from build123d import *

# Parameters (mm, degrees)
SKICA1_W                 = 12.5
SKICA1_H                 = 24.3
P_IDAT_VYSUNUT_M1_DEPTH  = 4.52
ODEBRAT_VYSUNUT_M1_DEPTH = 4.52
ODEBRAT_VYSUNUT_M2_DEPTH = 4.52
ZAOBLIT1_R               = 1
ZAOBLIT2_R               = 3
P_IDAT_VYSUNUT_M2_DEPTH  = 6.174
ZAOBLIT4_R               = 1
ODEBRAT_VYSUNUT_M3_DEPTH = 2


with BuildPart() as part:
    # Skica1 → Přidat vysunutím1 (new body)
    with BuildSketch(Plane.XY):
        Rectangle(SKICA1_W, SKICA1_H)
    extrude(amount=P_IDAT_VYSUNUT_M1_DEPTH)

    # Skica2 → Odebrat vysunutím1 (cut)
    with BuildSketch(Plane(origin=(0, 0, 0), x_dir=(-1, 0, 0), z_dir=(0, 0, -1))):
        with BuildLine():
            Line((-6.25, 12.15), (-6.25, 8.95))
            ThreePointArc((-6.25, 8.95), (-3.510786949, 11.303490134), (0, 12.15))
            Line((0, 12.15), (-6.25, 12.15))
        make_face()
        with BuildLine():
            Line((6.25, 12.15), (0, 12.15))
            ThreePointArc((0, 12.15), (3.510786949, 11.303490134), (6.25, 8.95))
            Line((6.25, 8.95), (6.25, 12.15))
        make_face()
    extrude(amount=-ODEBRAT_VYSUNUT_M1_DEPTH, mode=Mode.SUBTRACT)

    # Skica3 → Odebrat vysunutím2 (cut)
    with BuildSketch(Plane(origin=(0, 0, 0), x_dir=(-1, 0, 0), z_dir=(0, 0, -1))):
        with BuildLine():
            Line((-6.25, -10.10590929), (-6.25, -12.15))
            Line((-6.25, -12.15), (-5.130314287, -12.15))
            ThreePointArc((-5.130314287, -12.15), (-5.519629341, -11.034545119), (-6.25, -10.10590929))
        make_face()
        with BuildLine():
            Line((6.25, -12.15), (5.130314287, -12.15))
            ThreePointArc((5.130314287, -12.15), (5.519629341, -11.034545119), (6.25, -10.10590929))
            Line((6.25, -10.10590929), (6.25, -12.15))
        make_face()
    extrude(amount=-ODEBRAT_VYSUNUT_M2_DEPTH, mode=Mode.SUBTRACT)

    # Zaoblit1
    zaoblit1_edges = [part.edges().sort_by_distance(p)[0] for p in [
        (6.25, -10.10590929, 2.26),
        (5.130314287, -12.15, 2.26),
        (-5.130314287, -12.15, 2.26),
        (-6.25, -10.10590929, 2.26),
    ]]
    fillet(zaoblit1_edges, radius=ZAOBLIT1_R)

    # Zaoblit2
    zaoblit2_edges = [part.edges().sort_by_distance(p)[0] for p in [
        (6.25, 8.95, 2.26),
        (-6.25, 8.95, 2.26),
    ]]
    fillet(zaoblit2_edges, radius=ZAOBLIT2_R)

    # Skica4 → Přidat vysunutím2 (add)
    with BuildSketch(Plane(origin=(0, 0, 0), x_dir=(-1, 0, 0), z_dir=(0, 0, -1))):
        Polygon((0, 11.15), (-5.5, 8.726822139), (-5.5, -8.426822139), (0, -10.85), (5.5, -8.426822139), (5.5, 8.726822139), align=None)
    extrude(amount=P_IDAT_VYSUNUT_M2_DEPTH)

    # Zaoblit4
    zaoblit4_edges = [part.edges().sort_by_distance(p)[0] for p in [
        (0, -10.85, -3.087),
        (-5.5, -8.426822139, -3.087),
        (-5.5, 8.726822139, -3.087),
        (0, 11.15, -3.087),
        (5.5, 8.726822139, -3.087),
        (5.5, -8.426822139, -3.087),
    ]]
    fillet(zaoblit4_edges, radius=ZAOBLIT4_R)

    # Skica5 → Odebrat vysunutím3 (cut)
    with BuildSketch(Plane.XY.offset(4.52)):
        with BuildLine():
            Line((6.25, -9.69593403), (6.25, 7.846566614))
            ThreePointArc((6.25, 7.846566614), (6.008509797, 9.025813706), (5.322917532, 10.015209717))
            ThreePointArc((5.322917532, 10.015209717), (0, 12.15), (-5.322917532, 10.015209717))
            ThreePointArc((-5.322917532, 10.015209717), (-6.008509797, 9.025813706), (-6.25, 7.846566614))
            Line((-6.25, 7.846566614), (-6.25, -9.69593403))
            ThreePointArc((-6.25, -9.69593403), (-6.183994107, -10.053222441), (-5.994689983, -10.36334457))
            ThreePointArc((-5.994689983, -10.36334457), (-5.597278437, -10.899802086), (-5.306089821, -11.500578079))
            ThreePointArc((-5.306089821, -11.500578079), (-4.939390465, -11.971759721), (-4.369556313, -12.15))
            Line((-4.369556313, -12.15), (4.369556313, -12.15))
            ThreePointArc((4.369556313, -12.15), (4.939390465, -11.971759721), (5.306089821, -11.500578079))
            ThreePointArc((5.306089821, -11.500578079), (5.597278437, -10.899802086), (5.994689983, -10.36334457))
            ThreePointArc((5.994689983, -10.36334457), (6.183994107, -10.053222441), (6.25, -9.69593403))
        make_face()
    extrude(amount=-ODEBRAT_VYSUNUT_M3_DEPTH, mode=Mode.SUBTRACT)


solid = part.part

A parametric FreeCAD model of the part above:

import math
import FreeCAD as App
import Part
import Sketcher

V = App.Vector


def edges_at(feature, points):
    """Names of the edges that pass closest to the given points."""
    edges = feature.Shape.Edges
    near = lambda p: min(range(len(edges)), key=lambda i: edges[i].distToShape(Part.Vertex(*p))[0])
    return sorted({f"Edge{near(p) + 1}" for p in points})

doc = App.newDocument("Part")
body = doc.addObject("PartDesign::Body", "Body")

sketch1 = body.newObject("Sketcher::SketchObject", "Sketch")
sketch1.AttachmentSupport = (doc.getObject("XY_Plane"), [""])
sketch1.MapMode = "FlatFace"
sketch1.addGeometry([
    Part.LineSegment(V(-6, 12, 0), V(-6, -12, 0)),
    Part.LineSegment(V(-6, -12, 0), V(6, -12, 0)),
    Part.LineSegment(V(6, -12, 0), V(6, 12, 0)),
    Part.LineSegment(V(6, 12, 0), V(-6, 12, 0)),
], False)
sketch1.addConstraint([
    Sketcher.Constraint("Coincident", 0, 2, 1, 1),
    Sketcher.Constraint("Coincident", 1, 2, 2, 1),
    Sketcher.Constraint("Coincident", 2, 2, 3, 1),
    Sketcher.Constraint("Coincident", 3, 2, 0, 1),
    Sketcher.Constraint("Vertical", 0),
    Sketcher.Constraint("Horizontal", 1),
    Sketcher.Constraint("Vertical", 2),
    Sketcher.Constraint("Horizontal", 3),
    Sketcher.Constraint("Symmetric", 0, 2, 2, 2, -1, 1),
    Sketcher.Constraint("DistanceX", 1, 1, 1, 2, 12.5),
    Sketcher.Constraint("DistanceY", 0, 2, 0, 1, 24.3),
])
pad1 = body.newObject("PartDesign::Pad", "Pad")
pad1.Profile = sketch1
pad1.Length = 4.52

sketch2 = body.newObject("Sketcher::SketchObject", "Sketch001")
sketch2.AttachmentSupport = (doc.getObject("XY_Plane"), [""])
sketch2.MapMode = "FlatFace"
sketch2.addGeometry([
    Part.LineSegment(V(6.2, 12.2, 0), V(6.2, 8.9, 0)),
    Part.ArcOfCircle(Part.Circle(V(0, 4.4, 0), V(0, 0, 1), 7.7), math.radians(36), math.radians(90)),
    Part.LineSegment(V(0, 12.2, 0), V(6.2, 12.2, 0)),
    Part.LineSegment(V(-6.2, 12.2, 0), V(0, 12.2, 0)),
    Part.ArcOfCircle(Part.Circle(V(0, 4.4, 0), V(0, 0, 1), 7.7), math.radians(90), math.radians(144)),
    Part.LineSegment(V(-6.2, 8.9, 0), V(-6.2, 12.2, 0)),
], False)
sketch2.addConstraint([
    Sketcher.Constraint("Coincident", 0, 2, 1, 1),
    Sketcher.Constraint("Tangent", 1, 2, 2, 1),
    Sketcher.Constraint("Coincident", 2, 2, 0, 1),
    Sketcher.Constraint("Tangent", 3, 2, 4, 1),
    Sketcher.Constraint("Coincident", 4, 2, 5, 1),
    Sketcher.Constraint("Coincident", 5, 2, 3, 1),
    Sketcher.Constraint("Vertical", 0),
    Sketcher.Constraint("Horizontal", 2),
    Sketcher.Constraint("Horizontal", 3),
    Sketcher.Constraint("Vertical", 5),
    Sketcher.Constraint("Coincident", 4, 3, 1, 3),
    Sketcher.Constraint("Equal", 1, 4),
    Sketcher.Constraint("Symmetric", 0, 2, 4, 2, -2),
    Sketcher.Constraint("DistanceY", 0, 2, 0, 1, 3.2),
    Sketcher.Constraint("DistanceX", 2, 1, 2, 2, 6.25),
    Sketcher.Constraint("DistanceY", -1, 1, 0, 2, 8.95),
])
pocket1 = body.newObject("PartDesign::Pocket", "Pocket")
pocket1.Profile = sketch2
pocket1.Length = 4.52
pocket1.Reversed = True

sketch3 = body.newObject("Sketcher::SketchObject", "Sketch002")
sketch3.AttachmentSupport = (doc.getObject("XY_Plane"), [""])
sketch3.MapMode = "FlatFace"
sketch3.addGeometry([
    Part.LineSegment(V(6.2, -10.1, 0), V(6.2, -12.2, 0)),
    Part.LineSegment(V(6.2, -12.2, 0), V(5.1, -12.2, 0)),
    Part.ArcOfCircle(Part.Circle(V(8.7, -12.8, 0), V(0, 0, 1), 3.6), math.radians(132), math.radians(170)),
    Part.LineSegment(V(-5.1, -12.2, 0), V(-6.2, -12.2, 0)),
    Part.LineSegment(V(-6.2, -12.2, 0), V(-6.2, -10.1, 0)),
    Part.ArcOfCircle(Part.Circle(V(-8.7, -12.8, 0), V(0, 0, 1), 3.6), math.radians(10), math.radians(48)),
], False)
sketch3.addConstraint([
    Sketcher.Constraint("Coincident", 0, 2, 1, 1),
    Sketcher.Constraint("Coincident", 1, 2, 2, 2),
    Sketcher.Constraint("Coincident", 2, 1, 0, 1),
    Sketcher.Constraint("Coincident", 3, 2, 4, 1),
    Sketcher.Constraint("Coincident", 4, 2, 5, 2),
    Sketcher.Constraint("Coincident", 5, 1, 3, 1),
    Sketcher.Constraint("Vertical", 0),
    Sketcher.Constraint("Horizontal", 1),
    Sketcher.Constraint("Horizontal", 3),
    Sketcher.Constraint("Vertical", 4),
    Sketcher.Constraint("Equal", 2, 5),
    Sketcher.Constraint("Symmetric", 2, 3, 5, 3, -2),
    Sketcher.Constraint("Symmetric", 0, 2, 3, 2, -2),
    Sketcher.Constraint("DistanceX", 3, 2, 0, 2, 12.5),
    Sketcher.Constraint("DistanceY", 0, 2, -1, 1, 12.15),
    Sketcher.Constraint("Radius", 2, 3.589384),
    Sketcher.Constraint("DistanceY", 0, 2, 0, 1, 2.044091),
    Sketcher.Constraint("DistanceX", 1, 2, 1, 1, 1.119686),
])
pocket2 = body.newObject("PartDesign::Pocket", "Pocket001")
pocket2.Profile = sketch3
pocket2.Length = 4.52
pocket2.Reversed = True
doc.recompute()

fillet = body.newObject("PartDesign::Fillet", "Fillet")
fillet.Base = (pocket2, edges_at(pocket2, [
    (6.25, -10.106, 2.26),
    (5.13, -12.15, 2.26),
    (-5.13, -12.15, 2.26),
    (-6.25, -10.106, 2.26),
]))
fillet.Radius = 1
doc.recompute()

fillet2 = body.newObject("PartDesign::Fillet", "Fillet001")
fillet2.Base = (fillet, edges_at(fillet, [(6.25, 8.95, 2.26), (-6.25, 8.95, 2.26)]))
fillet2.Radius = 3

sketch4 = body.newObject("Sketcher::SketchObject", "Sketch003")
sketch4.AttachmentSupport = (doc.getObject("XY_Plane"), [""])
sketch4.MapMode = "FlatFace"
sketch4.addGeometry([
    Part.LineSegment(V(0, 11, 0), V(6, 9, 0)),
    Part.LineSegment(V(6, 9, 0), V(6, -8, 0)),
    Part.LineSegment(V(6, -8, 0), V(0, -11, 0)),
    Part.LineSegment(V(0, -11, 0), V(-6, -8, 0)),
    Part.LineSegment(V(-6, -8, 0), V(-6, 9, 0)),
    Part.LineSegment(V(-6, 9, 0), V(0, 11, 0)),
], False)
sketch4.addConstraint([
    Sketcher.Constraint("Coincident", 0, 2, 1, 1),
    Sketcher.Constraint("Coincident", 1, 2, 2, 1),
    Sketcher.Constraint("Coincident", 2, 2, 3, 1),
    Sketcher.Constraint("Coincident", 3, 2, 4, 1),
    Sketcher.Constraint("Coincident", 4, 2, 5, 1),
    Sketcher.Constraint("Coincident", 5, 2, 0, 1),
    Sketcher.Constraint("Vertical", 1),
    Sketcher.Constraint("Vertical", 4),
    Sketcher.Constraint("Symmetric", 1, 2, 3, 2, -2),
    Sketcher.Constraint("PointOnObject", 2, 2, -2),
    Sketcher.Constraint("PointOnObject", 5, 2, -2),
    Sketcher.Constraint("Parallel", 0, 3),
    Sketcher.Constraint("Parallel", 2, 5),
    Sketcher.Constraint("DistanceX", 3, 2, 1, 2, 11.0),
    Sketcher.Constraint("DistanceY", 2, 2, 5, 2, 22.0),
    Sketcher.Constraint("DistanceY", 2, 2, -1, 1, 10.85),
    Sketcher.Constraint("Distance", 0, 6.010141),
])
pad2 = body.newObject("PartDesign::Pad", "Pad001")
pad2.Profile = sketch4
pad2.Length = 6.174
pad2.Reversed = True
doc.recompute()

fillet3 = body.newObject("PartDesign::Fillet", "Fillet002")
fillet3.Base = (pad2, edges_at(pad2, [
    (0, -10.85, -3.087),
    (-5.5, -8.427, -3.087),
    (-5.5, 8.727, -3.087),
    (0, 11.15, -3.087),
    (5.5, 8.727, -3.087),
    (5.5, -8.427, -3.087),
]))
fillet3.Radius = 1

sketch5 = body.newObject("Sketcher::SketchObject", "Sketch004")
sketch5.AttachmentSupport = (doc.getObject("XY_Plane"), [""])
sketch5.MapMode = "FlatFace"
sketch5.AttachmentOffset = App.Placement(V(0, 0, 4.52), App.Rotation())
sketch5.addGeometry([
    Part.LineSegment(V(6.2, -9.7, 0), V(6.2, 7.8, 0)),
    Part.ArcOfCircle(Part.Circle(V(3.3, 7.8, 0), V(0, 0, 1), 3), math.radians(0), math.radians(46)),
    Part.ArcOfCircle(Part.Circle(V(0, 4.4, 0), V(0, 0, 1), 7.7), math.radians(46), math.radians(134)),
    Part.ArcOfCircle(Part.Circle(V(-3.3, 7.8, 0), V(0, 0, 1), 3), math.radians(134), math.radians(180)),
    Part.LineSegment(V(-6.2, 7.8, 0), V(-6.2, -9.7, 0)),
    Part.ArcOfCircle(Part.Circle(V(-5.3, -9.7, 0), V(0, 0, 1), 1), math.radians(180), math.radians(222)),
    Part.ArcOfCircle(Part.Circle(V(-8.7, -12.8, 0), V(0, 0, 1), 3.6), math.radians(21), math.radians(42)),
    Part.ArcOfCircle(Part.Circle(V(-4.4, -11.1, 0), V(0, 0, 1), 1), math.radians(-159), math.radians(-90)),
    Part.LineSegment(V(-4.4, -12.2, 0), V(4.4, -12.2, 0)),
    Part.ArcOfCircle(Part.Circle(V(4.4, -11.1, 0), V(0, 0, 1), 1), math.radians(-90), math.radians(-21)),
    Part.ArcOfCircle(Part.Circle(V(8.7, -12.8, 0), V(0, 0, 1), 3.6), math.radians(138), math.radians(159)),
    Part.ArcOfCircle(Part.Circle(V(5.3, -9.7, 0), V(0, 0, 1), 1), math.radians(-42), math.radians(0)),
], False)
sketch5.addConstraint([
    Sketcher.Constraint("Tangent", 0, 2, 1, 1),
    Sketcher.Constraint("Tangent", 1, 2, 2, 1),
    Sketcher.Constraint("Tangent", 2, 2, 3, 1),
    Sketcher.Constraint("Tangent", 3, 2, 4, 1),
    Sketcher.Constraint("Tangent", 4, 2, 5, 1),
    Sketcher.Constraint("Tangent", 5, 2, 6, 2),
    Sketcher.Constraint("Tangent", 6, 1, 7, 1),
    Sketcher.Constraint("Tangent", 7, 2, 8, 1),
    Sketcher.Constraint("Tangent", 8, 2, 9, 1),
    Sketcher.Constraint("Tangent", 9, 2, 10, 2),
    Sketcher.Constraint("Tangent", 10, 1, 11, 1),
    Sketcher.Constraint("Tangent", 11, 2, 0, 1),
    Sketcher.Constraint("Vertical", 0),
    Sketcher.Constraint("Vertical", 4),
    Sketcher.Constraint("Horizontal", 8),
    Sketcher.Constraint("Equal", 1, 3),
    Sketcher.Constraint("Equal", 5, 7),
    Sketcher.Constraint("Equal", 7, 9),
    Sketcher.Constraint("Equal", 6, 10),
    Sketcher.Constraint("Equal", 9, 11),
    Sketcher.Constraint("Symmetric", 1, 3, 3, 3, -2),
    Sketcher.Constraint("Symmetric", 6, 3, 10, 3, -2),
    Sketcher.Constraint("Radius", 1, 3.0),
    Sketcher.Constraint("Radius", 5, 1.0),
    Sketcher.Constraint("DistanceX", 3, 3, 1, 3, 6.5),
    Sketcher.Constraint("DistanceY", 7, 3, -1, 1, 11.15),
    Sketcher.Constraint("DistanceY", 0, 1, 0, 2, 17.542501),
    Sketcher.Constraint("Radius", 2, 7.703516),
    Sketcher.Constraint("Radius", 6, 3.589384),
    Sketcher.Constraint("DistanceX", 5, 2, 6, 1, 0.6886),
    Sketcher.Constraint("DistanceX", 6, 3, -1, 1, 8.667669),
])
pocket3 = body.newObject("PartDesign::Pocket", "Pocket002")
pocket3.Profile = sketch5
pocket3.Length = 2

doc.recompute()
